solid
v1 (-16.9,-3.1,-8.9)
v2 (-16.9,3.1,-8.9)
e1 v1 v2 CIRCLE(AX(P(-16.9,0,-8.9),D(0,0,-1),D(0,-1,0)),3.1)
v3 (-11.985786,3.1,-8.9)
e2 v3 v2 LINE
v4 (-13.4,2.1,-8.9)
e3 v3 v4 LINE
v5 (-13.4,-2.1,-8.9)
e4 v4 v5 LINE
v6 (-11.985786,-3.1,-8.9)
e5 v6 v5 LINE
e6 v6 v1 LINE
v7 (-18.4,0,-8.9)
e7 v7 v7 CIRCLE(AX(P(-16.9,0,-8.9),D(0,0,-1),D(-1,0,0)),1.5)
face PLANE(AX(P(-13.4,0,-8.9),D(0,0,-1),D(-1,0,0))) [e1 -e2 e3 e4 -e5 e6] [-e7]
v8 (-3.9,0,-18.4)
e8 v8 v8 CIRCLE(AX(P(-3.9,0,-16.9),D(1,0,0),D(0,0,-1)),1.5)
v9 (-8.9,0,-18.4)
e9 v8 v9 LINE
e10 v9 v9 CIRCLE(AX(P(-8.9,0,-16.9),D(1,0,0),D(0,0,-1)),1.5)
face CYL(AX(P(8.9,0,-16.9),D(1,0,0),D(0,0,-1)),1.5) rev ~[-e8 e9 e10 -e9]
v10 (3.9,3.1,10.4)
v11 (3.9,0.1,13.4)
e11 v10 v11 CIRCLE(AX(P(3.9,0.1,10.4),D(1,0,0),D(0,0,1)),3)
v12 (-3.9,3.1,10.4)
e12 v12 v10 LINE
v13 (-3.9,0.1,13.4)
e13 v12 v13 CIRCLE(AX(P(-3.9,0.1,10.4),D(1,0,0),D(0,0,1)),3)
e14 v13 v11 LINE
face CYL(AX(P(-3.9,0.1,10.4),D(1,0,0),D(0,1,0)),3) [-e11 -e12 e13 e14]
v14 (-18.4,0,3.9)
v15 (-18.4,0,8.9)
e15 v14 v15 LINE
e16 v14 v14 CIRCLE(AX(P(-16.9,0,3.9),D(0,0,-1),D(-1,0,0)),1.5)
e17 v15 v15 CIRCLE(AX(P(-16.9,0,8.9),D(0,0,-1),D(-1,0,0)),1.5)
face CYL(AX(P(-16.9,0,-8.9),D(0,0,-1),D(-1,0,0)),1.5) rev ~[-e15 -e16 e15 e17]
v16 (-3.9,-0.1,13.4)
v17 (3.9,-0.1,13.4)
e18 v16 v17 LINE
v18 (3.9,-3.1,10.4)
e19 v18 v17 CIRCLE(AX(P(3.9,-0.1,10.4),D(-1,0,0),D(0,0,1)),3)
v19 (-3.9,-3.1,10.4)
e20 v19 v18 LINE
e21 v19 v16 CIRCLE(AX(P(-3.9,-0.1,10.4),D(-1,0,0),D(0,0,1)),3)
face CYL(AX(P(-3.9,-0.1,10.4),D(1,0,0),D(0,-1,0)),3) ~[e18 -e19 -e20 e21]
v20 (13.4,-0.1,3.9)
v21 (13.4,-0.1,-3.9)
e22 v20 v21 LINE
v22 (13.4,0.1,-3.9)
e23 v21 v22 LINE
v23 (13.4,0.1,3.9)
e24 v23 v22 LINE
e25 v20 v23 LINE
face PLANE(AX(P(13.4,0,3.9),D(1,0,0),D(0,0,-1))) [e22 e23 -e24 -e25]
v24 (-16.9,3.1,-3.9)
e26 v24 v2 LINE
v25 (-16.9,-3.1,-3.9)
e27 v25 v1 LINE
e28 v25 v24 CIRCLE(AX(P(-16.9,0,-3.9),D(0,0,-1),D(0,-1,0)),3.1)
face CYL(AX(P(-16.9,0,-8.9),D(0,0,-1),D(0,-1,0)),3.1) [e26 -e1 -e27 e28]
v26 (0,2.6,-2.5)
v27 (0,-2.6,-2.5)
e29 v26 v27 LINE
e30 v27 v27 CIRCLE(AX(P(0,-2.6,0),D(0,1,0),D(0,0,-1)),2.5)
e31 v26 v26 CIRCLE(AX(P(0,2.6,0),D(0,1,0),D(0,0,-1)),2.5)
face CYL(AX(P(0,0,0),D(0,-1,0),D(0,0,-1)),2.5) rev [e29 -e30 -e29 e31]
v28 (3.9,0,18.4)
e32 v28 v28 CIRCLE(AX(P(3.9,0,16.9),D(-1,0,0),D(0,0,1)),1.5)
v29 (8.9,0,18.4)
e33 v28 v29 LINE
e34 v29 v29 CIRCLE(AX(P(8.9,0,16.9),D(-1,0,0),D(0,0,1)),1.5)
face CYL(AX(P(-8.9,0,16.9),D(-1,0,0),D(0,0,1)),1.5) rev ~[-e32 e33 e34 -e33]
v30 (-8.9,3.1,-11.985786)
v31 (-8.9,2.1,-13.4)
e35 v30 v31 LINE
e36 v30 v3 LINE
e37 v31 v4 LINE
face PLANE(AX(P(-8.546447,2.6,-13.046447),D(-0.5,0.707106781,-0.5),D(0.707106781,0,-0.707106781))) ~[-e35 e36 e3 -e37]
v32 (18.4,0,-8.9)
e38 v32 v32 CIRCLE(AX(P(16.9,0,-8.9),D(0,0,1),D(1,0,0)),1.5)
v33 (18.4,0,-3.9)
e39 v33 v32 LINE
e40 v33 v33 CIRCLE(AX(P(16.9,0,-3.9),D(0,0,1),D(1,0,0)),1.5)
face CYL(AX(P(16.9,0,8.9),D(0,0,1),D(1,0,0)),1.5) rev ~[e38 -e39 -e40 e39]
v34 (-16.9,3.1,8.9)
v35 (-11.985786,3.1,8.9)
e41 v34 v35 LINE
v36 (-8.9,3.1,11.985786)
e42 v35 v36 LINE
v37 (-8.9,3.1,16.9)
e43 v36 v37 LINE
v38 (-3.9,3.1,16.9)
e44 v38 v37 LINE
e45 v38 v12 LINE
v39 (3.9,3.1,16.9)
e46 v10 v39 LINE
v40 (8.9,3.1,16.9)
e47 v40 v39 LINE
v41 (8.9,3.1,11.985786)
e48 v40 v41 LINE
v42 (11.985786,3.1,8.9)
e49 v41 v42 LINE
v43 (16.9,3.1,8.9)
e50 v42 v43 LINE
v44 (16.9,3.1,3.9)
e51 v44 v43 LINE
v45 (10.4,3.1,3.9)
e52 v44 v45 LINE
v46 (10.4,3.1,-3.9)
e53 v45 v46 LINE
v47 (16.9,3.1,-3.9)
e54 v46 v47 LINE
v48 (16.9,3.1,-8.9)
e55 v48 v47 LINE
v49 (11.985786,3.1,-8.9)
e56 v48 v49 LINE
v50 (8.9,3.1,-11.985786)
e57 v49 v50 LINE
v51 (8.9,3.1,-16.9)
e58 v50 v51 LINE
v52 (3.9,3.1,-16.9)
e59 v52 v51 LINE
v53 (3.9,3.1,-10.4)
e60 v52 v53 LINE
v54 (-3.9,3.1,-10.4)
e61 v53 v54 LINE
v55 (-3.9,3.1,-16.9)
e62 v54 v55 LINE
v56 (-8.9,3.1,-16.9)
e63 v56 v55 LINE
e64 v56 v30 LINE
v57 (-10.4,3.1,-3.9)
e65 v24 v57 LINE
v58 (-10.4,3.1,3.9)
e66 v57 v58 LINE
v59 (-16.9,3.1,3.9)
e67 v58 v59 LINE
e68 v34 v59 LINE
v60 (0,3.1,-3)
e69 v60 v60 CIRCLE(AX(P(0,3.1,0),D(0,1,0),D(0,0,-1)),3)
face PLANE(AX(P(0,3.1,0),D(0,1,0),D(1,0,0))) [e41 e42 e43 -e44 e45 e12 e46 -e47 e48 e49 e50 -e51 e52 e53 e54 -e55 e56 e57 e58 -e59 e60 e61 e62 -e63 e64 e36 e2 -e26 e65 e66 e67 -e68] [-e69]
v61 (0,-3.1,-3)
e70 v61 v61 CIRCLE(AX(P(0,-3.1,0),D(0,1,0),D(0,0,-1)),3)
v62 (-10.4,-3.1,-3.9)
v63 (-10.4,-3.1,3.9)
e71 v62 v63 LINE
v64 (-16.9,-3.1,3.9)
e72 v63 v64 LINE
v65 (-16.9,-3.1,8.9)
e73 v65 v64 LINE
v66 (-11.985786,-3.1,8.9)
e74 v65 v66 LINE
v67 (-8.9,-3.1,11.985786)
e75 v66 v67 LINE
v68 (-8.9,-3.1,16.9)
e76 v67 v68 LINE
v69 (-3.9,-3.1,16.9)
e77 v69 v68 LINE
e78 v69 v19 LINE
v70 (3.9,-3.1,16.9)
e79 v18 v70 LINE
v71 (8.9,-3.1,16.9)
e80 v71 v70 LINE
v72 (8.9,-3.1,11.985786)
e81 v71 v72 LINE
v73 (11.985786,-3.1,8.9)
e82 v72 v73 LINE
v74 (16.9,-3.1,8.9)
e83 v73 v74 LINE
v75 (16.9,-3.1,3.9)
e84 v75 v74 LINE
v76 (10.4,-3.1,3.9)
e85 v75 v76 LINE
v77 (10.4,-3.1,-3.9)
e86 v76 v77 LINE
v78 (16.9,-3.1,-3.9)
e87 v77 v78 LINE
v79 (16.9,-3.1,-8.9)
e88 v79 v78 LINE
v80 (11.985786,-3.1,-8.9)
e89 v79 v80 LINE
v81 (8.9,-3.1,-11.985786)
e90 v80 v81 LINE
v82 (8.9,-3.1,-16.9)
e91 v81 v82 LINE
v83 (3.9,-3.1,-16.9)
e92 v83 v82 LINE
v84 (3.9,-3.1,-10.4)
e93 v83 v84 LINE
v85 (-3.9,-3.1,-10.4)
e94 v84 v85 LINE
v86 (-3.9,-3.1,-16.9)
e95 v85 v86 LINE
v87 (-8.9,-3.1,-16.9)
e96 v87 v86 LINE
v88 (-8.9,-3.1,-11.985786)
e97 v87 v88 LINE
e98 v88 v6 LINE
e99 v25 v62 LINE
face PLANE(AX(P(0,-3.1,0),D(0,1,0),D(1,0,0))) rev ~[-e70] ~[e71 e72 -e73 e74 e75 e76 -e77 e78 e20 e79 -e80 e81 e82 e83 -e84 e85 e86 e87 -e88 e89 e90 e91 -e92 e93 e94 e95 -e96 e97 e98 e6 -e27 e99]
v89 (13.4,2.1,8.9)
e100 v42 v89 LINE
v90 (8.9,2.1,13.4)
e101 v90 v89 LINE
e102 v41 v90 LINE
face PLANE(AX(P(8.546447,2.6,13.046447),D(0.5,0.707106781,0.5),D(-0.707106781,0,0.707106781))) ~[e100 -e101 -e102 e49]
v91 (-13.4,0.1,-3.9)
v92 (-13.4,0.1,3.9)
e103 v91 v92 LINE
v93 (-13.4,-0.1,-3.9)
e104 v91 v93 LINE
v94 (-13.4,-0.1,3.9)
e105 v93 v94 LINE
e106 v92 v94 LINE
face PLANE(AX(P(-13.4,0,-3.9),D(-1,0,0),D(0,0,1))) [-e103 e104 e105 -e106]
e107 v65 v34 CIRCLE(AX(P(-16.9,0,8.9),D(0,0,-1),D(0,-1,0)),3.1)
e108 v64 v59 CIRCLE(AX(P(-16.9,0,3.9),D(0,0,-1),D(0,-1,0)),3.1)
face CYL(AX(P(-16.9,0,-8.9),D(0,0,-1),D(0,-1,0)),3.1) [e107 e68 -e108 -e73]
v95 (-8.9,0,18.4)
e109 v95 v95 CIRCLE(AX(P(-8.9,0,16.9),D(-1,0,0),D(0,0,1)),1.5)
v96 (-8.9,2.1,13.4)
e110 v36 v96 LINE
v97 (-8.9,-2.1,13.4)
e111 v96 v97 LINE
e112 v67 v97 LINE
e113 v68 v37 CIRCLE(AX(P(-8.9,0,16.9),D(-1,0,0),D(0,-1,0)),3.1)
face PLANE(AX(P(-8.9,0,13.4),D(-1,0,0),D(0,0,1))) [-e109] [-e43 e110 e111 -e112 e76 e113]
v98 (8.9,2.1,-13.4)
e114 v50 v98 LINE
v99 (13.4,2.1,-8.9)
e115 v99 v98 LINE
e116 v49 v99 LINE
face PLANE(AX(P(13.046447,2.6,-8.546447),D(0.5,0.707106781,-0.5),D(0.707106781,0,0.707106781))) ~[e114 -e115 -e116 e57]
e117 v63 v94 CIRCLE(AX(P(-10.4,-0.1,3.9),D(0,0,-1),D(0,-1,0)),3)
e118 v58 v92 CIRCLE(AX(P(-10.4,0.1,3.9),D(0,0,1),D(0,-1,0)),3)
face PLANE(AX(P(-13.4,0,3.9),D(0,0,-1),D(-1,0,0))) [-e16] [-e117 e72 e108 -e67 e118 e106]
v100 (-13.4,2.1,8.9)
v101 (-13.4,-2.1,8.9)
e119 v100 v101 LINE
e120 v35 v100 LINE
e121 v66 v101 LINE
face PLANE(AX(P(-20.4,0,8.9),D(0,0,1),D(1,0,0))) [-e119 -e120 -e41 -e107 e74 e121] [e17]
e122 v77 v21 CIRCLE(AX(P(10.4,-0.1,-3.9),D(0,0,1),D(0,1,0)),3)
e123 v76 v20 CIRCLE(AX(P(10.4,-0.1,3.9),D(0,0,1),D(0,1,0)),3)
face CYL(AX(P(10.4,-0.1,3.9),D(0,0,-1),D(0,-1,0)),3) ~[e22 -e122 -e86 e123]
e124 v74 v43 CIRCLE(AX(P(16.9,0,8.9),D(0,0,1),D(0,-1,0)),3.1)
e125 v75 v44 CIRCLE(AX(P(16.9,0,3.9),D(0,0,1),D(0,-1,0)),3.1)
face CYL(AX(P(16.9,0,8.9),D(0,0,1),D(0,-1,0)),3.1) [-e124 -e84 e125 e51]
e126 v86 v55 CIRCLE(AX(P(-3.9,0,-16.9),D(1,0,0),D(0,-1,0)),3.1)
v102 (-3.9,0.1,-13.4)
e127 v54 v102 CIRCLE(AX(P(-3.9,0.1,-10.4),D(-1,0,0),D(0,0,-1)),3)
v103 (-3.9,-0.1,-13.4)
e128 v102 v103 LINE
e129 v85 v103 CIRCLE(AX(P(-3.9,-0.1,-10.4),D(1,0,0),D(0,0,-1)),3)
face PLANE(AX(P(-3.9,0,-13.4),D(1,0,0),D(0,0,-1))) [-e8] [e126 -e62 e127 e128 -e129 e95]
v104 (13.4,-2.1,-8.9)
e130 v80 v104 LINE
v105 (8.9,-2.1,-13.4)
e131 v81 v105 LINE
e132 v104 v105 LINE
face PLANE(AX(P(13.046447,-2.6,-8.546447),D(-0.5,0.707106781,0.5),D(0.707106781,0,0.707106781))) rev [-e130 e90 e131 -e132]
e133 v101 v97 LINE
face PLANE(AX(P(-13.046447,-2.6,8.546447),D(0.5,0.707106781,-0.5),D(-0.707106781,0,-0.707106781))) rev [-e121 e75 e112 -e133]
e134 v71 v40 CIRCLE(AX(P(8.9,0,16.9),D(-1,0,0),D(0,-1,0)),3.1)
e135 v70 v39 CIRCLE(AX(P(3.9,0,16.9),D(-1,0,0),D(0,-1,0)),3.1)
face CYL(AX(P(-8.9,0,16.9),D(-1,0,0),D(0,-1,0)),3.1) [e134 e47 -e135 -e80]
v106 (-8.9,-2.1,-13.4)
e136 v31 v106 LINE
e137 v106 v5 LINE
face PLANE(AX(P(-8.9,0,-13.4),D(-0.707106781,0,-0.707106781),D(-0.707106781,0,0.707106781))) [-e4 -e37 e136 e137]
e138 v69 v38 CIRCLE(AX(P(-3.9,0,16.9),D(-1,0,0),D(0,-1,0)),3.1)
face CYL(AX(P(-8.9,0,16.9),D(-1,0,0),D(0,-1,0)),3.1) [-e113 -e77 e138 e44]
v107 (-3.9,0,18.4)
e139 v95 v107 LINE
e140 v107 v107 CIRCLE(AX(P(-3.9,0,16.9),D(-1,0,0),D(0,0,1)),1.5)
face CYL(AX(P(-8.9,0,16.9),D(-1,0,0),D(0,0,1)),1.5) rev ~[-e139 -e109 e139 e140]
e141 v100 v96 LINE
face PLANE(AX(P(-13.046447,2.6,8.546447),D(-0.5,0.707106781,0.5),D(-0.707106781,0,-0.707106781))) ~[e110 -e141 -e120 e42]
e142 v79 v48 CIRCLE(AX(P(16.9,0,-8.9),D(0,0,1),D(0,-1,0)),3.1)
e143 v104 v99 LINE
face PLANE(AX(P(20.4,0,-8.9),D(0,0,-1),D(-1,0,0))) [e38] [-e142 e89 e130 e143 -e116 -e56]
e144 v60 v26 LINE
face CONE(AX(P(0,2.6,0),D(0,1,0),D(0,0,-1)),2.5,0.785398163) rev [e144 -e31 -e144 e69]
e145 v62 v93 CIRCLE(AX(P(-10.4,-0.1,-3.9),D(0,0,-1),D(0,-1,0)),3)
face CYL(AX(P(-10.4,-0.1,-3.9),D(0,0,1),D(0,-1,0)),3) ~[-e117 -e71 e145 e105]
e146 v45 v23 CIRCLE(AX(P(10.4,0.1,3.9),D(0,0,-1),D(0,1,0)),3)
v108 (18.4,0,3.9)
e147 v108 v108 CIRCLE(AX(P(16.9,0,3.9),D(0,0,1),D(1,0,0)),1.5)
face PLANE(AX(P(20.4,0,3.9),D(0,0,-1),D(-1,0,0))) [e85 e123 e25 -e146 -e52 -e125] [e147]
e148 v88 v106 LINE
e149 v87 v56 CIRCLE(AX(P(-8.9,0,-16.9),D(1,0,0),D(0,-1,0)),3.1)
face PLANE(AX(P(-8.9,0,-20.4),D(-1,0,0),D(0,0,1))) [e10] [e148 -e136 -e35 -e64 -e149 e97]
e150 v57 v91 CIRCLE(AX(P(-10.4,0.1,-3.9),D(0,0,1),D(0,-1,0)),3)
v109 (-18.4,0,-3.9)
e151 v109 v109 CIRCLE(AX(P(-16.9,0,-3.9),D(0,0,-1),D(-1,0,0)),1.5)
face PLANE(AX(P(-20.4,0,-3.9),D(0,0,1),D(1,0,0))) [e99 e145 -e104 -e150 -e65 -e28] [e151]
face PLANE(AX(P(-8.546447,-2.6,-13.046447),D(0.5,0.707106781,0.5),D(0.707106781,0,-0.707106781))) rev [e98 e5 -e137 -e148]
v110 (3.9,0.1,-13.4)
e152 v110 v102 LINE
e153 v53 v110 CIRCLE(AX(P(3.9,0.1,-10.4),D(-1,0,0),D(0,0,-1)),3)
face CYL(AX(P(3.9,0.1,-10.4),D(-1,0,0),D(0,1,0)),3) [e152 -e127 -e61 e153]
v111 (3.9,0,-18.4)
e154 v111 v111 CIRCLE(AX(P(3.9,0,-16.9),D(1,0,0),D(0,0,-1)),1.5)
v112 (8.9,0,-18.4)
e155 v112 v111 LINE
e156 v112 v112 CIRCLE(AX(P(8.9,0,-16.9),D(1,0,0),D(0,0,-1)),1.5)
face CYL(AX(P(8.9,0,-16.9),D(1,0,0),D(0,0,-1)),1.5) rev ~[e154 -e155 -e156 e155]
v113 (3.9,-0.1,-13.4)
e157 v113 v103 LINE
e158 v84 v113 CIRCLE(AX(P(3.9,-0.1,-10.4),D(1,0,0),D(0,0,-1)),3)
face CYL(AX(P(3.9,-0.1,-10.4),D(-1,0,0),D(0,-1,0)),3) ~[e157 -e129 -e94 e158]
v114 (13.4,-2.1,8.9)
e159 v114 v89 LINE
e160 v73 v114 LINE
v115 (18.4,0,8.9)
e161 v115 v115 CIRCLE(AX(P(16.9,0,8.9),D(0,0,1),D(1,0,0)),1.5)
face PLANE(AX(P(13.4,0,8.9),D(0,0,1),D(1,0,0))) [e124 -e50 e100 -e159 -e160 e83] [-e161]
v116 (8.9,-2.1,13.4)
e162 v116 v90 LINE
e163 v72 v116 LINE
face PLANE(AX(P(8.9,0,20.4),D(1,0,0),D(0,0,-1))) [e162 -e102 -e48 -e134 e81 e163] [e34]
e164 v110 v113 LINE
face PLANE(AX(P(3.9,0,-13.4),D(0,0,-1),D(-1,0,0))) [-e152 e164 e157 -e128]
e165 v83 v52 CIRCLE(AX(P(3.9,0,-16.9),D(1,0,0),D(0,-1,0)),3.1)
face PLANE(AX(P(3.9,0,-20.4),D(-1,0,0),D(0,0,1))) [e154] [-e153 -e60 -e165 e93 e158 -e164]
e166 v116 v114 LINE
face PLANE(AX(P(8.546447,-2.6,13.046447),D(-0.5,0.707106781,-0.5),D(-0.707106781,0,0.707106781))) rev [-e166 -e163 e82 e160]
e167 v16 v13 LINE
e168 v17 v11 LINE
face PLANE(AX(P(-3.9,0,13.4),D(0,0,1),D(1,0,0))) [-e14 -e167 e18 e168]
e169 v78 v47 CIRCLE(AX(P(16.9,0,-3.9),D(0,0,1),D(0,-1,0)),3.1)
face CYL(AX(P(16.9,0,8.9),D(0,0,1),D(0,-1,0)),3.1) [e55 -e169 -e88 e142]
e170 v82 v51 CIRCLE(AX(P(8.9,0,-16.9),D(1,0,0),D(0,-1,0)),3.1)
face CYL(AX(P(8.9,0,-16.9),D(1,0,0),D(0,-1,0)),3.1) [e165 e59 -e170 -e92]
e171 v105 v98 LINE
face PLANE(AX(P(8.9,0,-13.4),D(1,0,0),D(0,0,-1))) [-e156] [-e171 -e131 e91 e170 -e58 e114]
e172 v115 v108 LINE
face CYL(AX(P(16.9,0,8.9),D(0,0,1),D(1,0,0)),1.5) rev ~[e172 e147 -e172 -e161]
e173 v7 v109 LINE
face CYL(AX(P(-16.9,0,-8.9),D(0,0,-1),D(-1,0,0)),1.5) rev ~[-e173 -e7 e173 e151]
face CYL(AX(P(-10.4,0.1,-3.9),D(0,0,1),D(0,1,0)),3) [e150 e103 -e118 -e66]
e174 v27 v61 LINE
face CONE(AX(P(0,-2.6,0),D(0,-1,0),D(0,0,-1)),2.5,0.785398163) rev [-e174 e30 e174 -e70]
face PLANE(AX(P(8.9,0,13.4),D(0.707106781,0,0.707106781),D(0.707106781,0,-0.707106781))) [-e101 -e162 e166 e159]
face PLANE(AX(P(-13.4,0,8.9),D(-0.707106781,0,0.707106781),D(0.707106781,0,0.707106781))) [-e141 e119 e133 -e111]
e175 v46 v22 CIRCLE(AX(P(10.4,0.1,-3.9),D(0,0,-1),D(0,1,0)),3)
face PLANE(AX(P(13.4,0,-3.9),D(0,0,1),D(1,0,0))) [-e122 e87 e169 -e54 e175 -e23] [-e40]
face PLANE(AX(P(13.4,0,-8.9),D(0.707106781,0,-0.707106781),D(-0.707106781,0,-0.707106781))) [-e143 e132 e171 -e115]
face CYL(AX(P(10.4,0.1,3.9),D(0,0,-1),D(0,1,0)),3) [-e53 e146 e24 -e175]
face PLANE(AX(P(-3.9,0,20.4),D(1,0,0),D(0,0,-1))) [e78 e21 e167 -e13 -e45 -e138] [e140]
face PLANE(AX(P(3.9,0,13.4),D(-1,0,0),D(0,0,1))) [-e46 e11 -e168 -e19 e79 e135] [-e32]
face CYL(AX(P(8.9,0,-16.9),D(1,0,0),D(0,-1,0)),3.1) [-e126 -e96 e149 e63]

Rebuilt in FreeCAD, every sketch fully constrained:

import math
import FreeCAD as App
import Part
import Sketcher

V = App.Vector


def edges_at(feature, points):
    """Names of the edges that pass closest to the given points."""
    edges = feature.Shape.Edges
    near = lambda p: min(range(len(edges)), key=lambda i: edges[i].distToShape(Part.Vertex(*p))[0])
    return sorted({f"Edge{near(p) + 1}" for p in points})


def add_polygon(sketch, points):
    """Adds a closed chain of lines whose ends are joined by coincident constraints."""
    first, n = sketch.GeometryCount, len(points)
    for a, b in zip(points, points[1:] + points[:1]):
        sketch.addGeometry(Part.LineSegment(App.Vector(*a, 0), App.Vector(*b, 0)), False)
    for i in range(n):
        sketch.addConstraint(Sketcher.Constraint("Coincident", first + i, 2, first + (i + 1) % n, 1))

doc = App.newDocument("Part")
body = doc.addObject("PartDesign::Body", "Body")

# Sketch on XZ plane
sketch1 = doc.addObject("Sketcher::SketchObject", "Sketch")
body.addObject(sketch1)
sketch1.AttachmentSupport = (doc.XZ_Plane, [""])
sketch1.MapMode = "FlatFace"
add_polygon(sketch1, [(-8.9, 13.4), (-8.9, 20.4), (-3.9, 20.4), (-3.9, 13.4), (3.9, 13.4), (3.9, 20.4), (8.9, 20.4), (8.9, 13.4), (13.4, 8.9), (20.4, 8.9), (20.4, 3.9), (13.4, 3.9), (13.4, -3.9), (20.4, -3.9), (20.4, -8.9), (13.4, -8.9), (8.9, -13.4), (8.9, -20.4), (3.9, -20.4), (3.9, -13.4), (-3.9, -13.4), (-3.9, -20.4), (-8.9, -20.4), (-8.9, -13.4), (-13.4, -8.9), (-20.4, -8.9), (-20.4, -3.9), (-13.4, -3.9), (-13.4, 3.9), (-20.4, 3.9), (-20.4, 8.9), (-13.4, 8.9)])  # lines 0-31
sketch1.addGeometry(Part.Circle(V(0, 0, 0), V(0, 0, 1), 2.5), False)  # 32
sketch1.addConstraint([
    Sketcher.Constraint("Vertical", 0),
    Sketcher.Constraint("Horizontal", 1),
    Sketcher.Constraint("Vertical", 2),
    Sketcher.Constraint("Horizontal", 3),
    Sketcher.Constraint("Vertical", 4),
    Sketcher.Constraint("Horizontal", 5),
    Sketcher.Constraint("Vertical", 6),
    Sketcher.Constraint("Horizontal", 8),
    Sketcher.Constraint("Vertical", 9),
    Sketcher.Constraint("Horizontal", 10),
    Sketcher.Constraint("Vertical", 11),
    Sketcher.Constraint("Horizontal", 12),
    Sketcher.Constraint("Vertical", 13),
    Sketcher.Constraint("Horizontal", 14),
    Sketcher.Constraint("Vertical", 16),
    Sketcher.Constraint("Horizontal", 17),
    Sketcher.Constraint("Vertical", 18),
    Sketcher.Constraint("Horizontal", 19),
    Sketcher.Constraint("Vertical", 20),
    Sketcher.Constraint("Horizontal", 21),
    Sketcher.Constraint("Vertical", 22),
    Sketcher.Constraint("Horizontal", 24),
    Sketcher.Constraint("Vertical", 25),
    Sketcher.Constraint("Horizontal", 26),
    Sketcher.Constraint("Vertical", 27),
    Sketcher.Constraint("Horizontal", 28),
    Sketcher.Constraint("Vertical", 29),
    Sketcher.Constraint("Horizontal", 30),
    Sketcher.Constraint("Coincident", 32, 3, -1, 1),
    Sketcher.Constraint("Symmetric", 0, 2, 16, 2, -1, 1),
    Sketcher.Constraint("Symmetric", 2, 2, 18, 2, -1, 1),
    Sketcher.Constraint("Symmetric", 4, 2, 20, 2, -1, 1),
    Sketcher.Constraint("Symmetric", 6, 2, 22, 2, -1, 1),
    Sketcher.Constraint("Symmetric", 7, 2, 23, 2, -1, 1),
    Sketcher.Constraint("Symmetric", 9, 2, 25, 2, -1, 1),
    Sketcher.Constraint("Symmetric", 11, 2, 27, 2, -1, 1),
    Sketcher.Constraint("Symmetric", 13, 2, 29, 2, -1, 1),
    Sketcher.Constraint("Symmetric", 1, 2, 4, 2, -2),
    Sketcher.Constraint("Symmetric", 15, 2, 22, 2, -2),
    Sketcher.Constraint("Symmetric", 14, 2, 23, 2, -2),
    Sketcher.Constraint("Symmetric", 12, 2, 25, 2, -2),
    Sketcher.Constraint("Perpendicular", 7, 15),
    Sketcher.Constraint("Perpendicular", 23, 31),
    Sketcher.Constraint("Horizontal", 3, 2, 6, 2),
    Sketcher.Constraint("Horizontal", 6, 2, 31, 2),
    Sketcher.Constraint("Vertical", 7, 2, 10, 2),
    Sketcher.Constraint("Equal", 30, 0),
    Sketcher.Constraint("Equal", 21, 9),
    Sketcher.Constraint("Equal", 19, 11),
    Sketcher.Constraint("Diameter", 32, 5.0),
    Sketcher.Constraint("DistanceX", 1, 1, 1, 2, 5.0),
    Sketcher.Constraint("DistanceX", 8, 1, 8, 2, 7.0),
    Sketcher.Constraint("DistanceX", 3, 1, 3, 2, 7.8),
    Sketcher.Constraint("DistanceY", -1, 1, 0, 2, 20.4),
])
pad1 = doc.addObject("PartDesign::Pad", "Pad")
body.addObject(pad1)
pad1.Profile = sketch1
pad1.Length = 6.2
pad1.Midplane = True

# Sketch on YZ plane
sketch2 = doc.addObject("Sketcher::SketchObject", "Sketch001")
body.addObject(sketch2)
sketch2.AttachmentSupport = (doc.YZ_Plane, [""])
sketch2.MapMode = "FlatFace"
sketch2.AttachmentOffset = App.Placement(V(0, 0, -8.9), App.Rotation())
sketch2.addGeometry([
    Part.Circle(V(0, 16.9, 0), V(0, 0, 1), 1.5),  # 0
    Part.LineSegment(V(3.1, 20.4, 0), V(3.1, 16.9, 0)),  # 1
    Part.ArcOfCircle(Part.Circle(V(0, 16.9, 0), V(0, 0, 1), 3.1), math.radians(0), math.radians(180)),  # 2
    Part.LineSegment(V(-3.1, 16.9, 0), V(-3.1, 20.4, 0)),  # 3
    Part.LineSegment(V(-3.1, 20.4, 0), V(3.1, 20.4, 0)),  # 4
], False)
sketch2.addConstraint([
    Sketcher.Constraint("Tangent", 1, 2, 2, 1),
    Sketcher.Constraint("Tangent", 2, 2, 3, 1),
    Sketcher.Constraint("Coincident", 3, 2, 4, 1),
    Sketcher.Constraint("Coincident", 4, 2, 1, 1),
    Sketcher.Constraint("Vertical", 1),
    Sketcher.Constraint("Vertical", 3),
    Sketcher.Constraint("Horizontal", 4),
    Sketcher.Constraint("Coincident", 2, 3, 0, 3),
    Sketcher.Constraint("PointOnObject", 0, 3, -2),
    Sketcher.Constraint("Diameter", 0, 3.0),
    Sketcher.Constraint("Radius", 2, 3.1),
    Sketcher.Constraint("DistanceY", 1, 2, 1, 1, 3.5),
    Sketcher.Constraint("DistanceY", -1, 1, 0, 3, 16.9),
])
pocket1 = doc.addObject("PartDesign::Pocket", "Pocket")
body.addObject(pocket1)
pocket1.Profile = sketch2
pocket1.Length = 73.673147
pocket1.Midplane = True
doc.recompute()

polarpattern = doc.addObject("PartDesign::PolarPattern", "PolarPattern")
body.addObject(polarpattern)
polarpattern.Originals = [pocket1]
polarpattern.Axis = (doc.Y_Axis, [""])
polarpattern.Angle = 360
polarpattern.Occurrences = 4
body.Tip = polarpattern
doc.recompute()

fillet = doc.addObject("PartDesign::Fillet", "Fillet")
body.addObject(fillet)
fillet.Base = (polarpattern, edges_at(polarpattern, [
    (-13.4, 3.1, 0),
    (0, 3.1, 13.4),
    (-13.4, -3.1, 0),
    (0, -3.1, -13.4),
    (13.4, -3.1, 0),
    (0, -3.1, 13.4),
    (13.4, 3.1, 0),
    (0, 3.1, -13.4),
]))
fillet.Radius = 3
doc.recompute()

chamfer = doc.addObject("PartDesign::Chamfer", "Chamfer")
body.addObject(chamfer)
chamfer.Base = (fillet, edges_at(fillet, [
    (-11.15, 3.1, -11.15),
    (-11.15, -3.1, -11.15),
    (11.15, -3.1, -11.15),
    (11.15, 3.1, 11.15),
    (11.15, -3.1, 11.15),
    (-11.15, -3.1, 11.15),
    (-11.15, 3.1, 11.15),
    (11.15, 3.1, -11.15),
]))
chamfer.Size = 1
doc.recompute()

chamfer2 = doc.addObject("PartDesign::Chamfer", "Chamfer001")
body.addObject(chamfer2)
chamfer2.Base = (chamfer, edges_at(chamfer, [(0, -3.1, 2.5), (0, 3.1, 2.5)]))
chamfer2.Size = 0.5

doc.recompute()
